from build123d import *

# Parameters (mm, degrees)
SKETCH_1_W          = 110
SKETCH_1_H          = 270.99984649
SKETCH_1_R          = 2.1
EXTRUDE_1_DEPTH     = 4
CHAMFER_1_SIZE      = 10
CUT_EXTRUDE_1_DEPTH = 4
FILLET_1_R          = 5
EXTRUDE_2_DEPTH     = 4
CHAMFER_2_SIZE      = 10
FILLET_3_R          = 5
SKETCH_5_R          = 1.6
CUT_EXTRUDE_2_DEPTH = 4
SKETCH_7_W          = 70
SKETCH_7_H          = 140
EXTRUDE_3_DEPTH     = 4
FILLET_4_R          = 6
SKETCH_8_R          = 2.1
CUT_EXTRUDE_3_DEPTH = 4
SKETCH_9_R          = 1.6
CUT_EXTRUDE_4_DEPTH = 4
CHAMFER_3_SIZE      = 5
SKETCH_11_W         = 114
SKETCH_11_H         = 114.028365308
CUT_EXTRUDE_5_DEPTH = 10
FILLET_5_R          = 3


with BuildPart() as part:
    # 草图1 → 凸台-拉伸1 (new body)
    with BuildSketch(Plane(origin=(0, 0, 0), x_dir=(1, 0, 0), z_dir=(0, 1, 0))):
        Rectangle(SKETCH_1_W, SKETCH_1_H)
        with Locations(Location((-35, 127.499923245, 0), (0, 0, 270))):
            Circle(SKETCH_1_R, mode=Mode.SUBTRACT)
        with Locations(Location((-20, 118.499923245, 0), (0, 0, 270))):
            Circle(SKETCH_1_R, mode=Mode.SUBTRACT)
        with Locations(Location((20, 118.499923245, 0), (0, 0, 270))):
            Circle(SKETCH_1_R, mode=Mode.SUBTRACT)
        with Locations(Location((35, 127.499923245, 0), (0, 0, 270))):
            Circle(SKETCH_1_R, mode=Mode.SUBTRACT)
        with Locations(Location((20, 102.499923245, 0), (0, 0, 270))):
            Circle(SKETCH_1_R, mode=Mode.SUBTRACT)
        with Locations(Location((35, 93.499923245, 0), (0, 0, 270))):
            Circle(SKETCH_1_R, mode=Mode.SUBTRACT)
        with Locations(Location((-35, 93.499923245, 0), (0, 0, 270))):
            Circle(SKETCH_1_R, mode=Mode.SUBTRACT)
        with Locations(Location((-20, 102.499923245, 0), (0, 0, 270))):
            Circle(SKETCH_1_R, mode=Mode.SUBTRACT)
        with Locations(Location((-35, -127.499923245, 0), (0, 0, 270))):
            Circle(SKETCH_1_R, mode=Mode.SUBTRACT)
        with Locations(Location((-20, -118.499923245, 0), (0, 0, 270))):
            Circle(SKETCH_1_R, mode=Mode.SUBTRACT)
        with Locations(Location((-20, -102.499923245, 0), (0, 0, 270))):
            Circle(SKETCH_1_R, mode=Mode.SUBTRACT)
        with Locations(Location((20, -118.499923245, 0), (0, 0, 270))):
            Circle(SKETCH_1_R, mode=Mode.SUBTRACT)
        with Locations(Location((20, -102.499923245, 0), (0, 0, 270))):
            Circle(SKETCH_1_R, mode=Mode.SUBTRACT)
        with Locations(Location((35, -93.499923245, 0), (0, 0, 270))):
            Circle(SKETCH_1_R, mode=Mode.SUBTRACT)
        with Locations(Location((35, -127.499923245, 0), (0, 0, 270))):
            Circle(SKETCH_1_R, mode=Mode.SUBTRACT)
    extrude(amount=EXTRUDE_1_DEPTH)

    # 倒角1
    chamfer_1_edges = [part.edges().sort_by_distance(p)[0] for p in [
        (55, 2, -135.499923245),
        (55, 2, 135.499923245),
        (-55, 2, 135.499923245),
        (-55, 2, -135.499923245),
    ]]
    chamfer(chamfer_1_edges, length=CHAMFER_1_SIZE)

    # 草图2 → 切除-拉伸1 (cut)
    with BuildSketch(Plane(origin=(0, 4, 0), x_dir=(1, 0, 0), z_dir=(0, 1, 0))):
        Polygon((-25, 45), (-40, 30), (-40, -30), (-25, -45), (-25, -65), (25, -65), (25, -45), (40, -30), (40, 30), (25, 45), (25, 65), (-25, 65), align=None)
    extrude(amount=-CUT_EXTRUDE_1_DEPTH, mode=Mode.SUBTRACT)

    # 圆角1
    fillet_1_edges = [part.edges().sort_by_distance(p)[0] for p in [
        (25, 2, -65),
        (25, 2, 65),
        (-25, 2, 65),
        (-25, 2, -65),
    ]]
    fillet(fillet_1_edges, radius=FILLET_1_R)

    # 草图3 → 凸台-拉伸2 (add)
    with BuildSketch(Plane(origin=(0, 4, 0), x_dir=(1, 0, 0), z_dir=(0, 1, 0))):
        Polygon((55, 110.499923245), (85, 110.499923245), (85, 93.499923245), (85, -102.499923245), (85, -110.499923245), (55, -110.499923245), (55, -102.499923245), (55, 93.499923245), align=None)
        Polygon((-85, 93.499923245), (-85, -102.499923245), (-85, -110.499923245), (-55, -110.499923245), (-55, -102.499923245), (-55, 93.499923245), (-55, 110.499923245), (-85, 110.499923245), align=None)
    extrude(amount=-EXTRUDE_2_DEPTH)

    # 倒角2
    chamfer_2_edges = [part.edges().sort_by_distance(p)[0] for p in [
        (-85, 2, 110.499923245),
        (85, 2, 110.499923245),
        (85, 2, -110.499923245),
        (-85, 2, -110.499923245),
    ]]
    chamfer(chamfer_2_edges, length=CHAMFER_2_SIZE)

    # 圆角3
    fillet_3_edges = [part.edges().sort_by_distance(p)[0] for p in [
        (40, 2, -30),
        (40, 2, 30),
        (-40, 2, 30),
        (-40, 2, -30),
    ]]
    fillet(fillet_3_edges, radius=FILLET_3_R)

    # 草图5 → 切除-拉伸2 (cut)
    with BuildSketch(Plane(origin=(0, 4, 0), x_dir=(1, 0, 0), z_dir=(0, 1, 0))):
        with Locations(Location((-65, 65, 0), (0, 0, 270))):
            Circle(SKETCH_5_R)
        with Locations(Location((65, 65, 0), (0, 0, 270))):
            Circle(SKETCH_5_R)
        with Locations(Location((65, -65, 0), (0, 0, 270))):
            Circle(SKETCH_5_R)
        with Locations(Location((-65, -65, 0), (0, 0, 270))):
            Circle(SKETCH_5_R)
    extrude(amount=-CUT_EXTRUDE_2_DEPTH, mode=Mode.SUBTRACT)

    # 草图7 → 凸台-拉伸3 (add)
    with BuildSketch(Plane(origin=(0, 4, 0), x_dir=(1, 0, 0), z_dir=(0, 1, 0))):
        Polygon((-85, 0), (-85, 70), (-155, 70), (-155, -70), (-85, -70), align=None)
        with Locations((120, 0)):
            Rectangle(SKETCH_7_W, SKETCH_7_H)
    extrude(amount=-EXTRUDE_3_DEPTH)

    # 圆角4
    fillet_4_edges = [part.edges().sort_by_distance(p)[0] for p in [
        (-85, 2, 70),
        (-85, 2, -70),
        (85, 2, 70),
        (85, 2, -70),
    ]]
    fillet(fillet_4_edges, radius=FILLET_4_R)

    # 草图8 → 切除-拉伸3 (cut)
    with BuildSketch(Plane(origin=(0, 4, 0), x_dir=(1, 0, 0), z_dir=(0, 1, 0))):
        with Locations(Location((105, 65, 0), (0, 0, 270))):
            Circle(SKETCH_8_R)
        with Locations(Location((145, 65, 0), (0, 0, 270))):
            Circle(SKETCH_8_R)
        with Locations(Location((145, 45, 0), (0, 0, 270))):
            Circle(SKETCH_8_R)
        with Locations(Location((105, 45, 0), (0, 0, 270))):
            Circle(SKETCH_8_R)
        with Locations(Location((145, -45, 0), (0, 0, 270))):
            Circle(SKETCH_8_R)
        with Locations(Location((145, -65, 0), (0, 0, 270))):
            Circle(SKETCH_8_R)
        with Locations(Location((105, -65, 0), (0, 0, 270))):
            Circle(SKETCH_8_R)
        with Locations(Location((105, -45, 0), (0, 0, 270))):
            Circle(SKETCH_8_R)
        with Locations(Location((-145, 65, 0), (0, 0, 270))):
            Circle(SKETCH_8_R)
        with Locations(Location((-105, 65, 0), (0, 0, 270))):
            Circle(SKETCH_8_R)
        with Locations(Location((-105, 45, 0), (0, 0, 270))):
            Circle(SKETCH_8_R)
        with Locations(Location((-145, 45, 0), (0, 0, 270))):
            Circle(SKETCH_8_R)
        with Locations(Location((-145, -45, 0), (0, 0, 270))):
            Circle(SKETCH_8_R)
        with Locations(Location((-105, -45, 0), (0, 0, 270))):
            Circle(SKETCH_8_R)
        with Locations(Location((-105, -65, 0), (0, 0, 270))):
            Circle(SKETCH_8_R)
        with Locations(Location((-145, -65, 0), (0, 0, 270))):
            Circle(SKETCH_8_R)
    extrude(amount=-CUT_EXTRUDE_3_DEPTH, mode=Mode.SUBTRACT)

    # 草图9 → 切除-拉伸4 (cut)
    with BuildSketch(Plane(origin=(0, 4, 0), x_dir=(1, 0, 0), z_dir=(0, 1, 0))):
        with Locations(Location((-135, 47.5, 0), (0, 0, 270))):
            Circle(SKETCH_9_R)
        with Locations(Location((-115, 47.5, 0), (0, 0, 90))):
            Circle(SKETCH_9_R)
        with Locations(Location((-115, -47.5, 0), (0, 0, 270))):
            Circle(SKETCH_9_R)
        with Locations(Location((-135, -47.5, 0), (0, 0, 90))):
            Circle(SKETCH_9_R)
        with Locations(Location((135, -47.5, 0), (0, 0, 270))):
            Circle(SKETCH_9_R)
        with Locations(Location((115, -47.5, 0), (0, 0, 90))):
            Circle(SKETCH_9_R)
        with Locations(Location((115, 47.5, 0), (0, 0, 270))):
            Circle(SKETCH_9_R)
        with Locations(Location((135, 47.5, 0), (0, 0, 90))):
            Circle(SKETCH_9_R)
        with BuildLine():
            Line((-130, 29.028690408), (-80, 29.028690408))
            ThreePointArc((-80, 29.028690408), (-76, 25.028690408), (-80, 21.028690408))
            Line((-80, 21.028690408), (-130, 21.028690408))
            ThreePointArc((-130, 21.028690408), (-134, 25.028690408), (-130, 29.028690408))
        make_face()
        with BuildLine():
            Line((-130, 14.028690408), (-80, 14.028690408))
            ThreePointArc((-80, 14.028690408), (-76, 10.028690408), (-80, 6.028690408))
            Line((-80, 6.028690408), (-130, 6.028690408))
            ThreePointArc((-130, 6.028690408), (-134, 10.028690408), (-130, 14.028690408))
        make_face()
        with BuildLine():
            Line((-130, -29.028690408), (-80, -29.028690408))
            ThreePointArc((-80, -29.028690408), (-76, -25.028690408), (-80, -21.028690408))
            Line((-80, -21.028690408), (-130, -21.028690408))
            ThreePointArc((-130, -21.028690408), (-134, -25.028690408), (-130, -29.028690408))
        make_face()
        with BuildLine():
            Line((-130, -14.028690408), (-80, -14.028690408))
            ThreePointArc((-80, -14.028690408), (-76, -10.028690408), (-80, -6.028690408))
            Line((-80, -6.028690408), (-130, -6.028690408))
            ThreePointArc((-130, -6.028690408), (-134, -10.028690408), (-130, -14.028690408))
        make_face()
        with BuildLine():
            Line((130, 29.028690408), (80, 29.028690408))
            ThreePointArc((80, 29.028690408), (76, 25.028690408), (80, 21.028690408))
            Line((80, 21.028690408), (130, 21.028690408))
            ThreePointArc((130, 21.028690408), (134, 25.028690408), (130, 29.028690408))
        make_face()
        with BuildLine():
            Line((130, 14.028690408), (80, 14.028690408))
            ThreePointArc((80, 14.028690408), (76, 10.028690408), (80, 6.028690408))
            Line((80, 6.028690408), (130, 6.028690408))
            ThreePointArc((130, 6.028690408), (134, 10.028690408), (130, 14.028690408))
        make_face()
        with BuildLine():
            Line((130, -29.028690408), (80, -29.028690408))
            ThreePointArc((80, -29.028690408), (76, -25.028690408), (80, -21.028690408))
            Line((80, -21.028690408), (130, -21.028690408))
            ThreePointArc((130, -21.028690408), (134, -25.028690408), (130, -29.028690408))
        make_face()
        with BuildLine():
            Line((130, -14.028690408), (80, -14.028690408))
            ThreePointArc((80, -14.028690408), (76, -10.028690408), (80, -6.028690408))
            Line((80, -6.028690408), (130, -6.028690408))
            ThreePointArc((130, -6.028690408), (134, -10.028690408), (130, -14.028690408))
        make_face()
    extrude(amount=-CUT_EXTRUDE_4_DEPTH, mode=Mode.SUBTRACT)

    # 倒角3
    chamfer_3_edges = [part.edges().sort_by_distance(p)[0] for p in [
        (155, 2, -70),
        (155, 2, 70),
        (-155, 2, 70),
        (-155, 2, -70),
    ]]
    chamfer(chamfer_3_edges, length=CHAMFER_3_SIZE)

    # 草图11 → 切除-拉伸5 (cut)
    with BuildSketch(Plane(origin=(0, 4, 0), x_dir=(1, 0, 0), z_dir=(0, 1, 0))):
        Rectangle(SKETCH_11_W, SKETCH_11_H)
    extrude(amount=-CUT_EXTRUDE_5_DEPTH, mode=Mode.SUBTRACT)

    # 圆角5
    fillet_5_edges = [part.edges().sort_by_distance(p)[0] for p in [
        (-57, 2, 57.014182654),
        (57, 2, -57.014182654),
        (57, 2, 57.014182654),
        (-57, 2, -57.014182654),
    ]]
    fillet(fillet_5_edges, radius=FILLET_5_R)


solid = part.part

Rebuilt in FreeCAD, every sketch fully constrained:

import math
import FreeCAD as App
import Part
import Sketcher


def edges_at(feature, points):
    """Names of the edges that pass closest to the given points."""
    edges = feature.Shape.Edges
    near = lambda p: min(range(len(edges)), key=lambda i: edges[i].distToShape(Part.Vertex(*p))[0])
    return sorted({f"Edge{near(p) + 1}" for p in points})

doc = App.newDocument("Part")
params = doc.addObject("Spreadsheet::Sheet", "Params")
for row, (alias, value) in enumerate([
    ("sketch1_diameter", "4.2 mm"),
    ("sketch1_width", "110 mm"),
    ("pad1_length", "4 mm"),
    ("chamfer_size", "10 mm"),
    ("sketch2_width", "50 mm"),
    ("sketch2_height", "60 mm"),
    ("sketch2_height2", "20 mm"),
    ("pocket1_length", "4 mm"),
    ("fillet_radius", "5 mm"),
    ("sketch3_width", "30 mm"),
    ("pad2_length", "4 mm"),
    ("chamfer2_size", "10 mm"),
    ("fillet2_radius", "5 mm"),
    ("sketch4_diameter", "3.2 mm"),
    ("pocket2_length", "4 mm"),
    ("sketch5_width", "70 mm"),
    ("sketch5_height", "140 mm"),
    ("pad3_length", "4 mm"),
    ("fillet3_radius", "6 mm"),
    ("sketch6_diameter", "4.2 mm"),
    ("pocket3_length", "4 mm"),
    ("sketch7_radius", "4 mm"),
    ("sketch7_diameter", "3.2 mm"),
    ("sketch7_width", "50 mm"),
    ("pocket4_length", "4 mm"),
    ("chamfer3_size", "5 mm"),
    ("sketch8_width", "114 mm"),
    ("pocket5_length", "10 mm"),
    ("fillet4_radius", "3 mm"),
], start=1):
    params.set(f"A{row}", alias)
    params.set(f"B{row}", "=" + value)
    params.setAlias(f"B{row}", alias)

body = doc.addObject("PartDesign::Body", "Body")

# Sketch on XZ plane
sketch1 = body.newObject("Sketcher::SketchObject", "Sketch")
sketch1.AttachmentSupport = (doc.getObject("XZ_Plane"), [""])
sketch1.MapMode = "FlatFace"
sketch1.addGeometry(Part.LineSegment(App.Vector(-55, -135.499923, 0), App.Vector(-55, 135.499923, 0)), False)
sketch1.addGeometry(Part.LineSegment(App.Vector(-55, 135.499923, 0), App.Vector(55, 135.499923, 0)), False)
sketch1.addGeometry(Part.LineSegment(App.Vector(55, 135.499923, 0), App.Vector(55, -135.499923, 0)), False)
sketch1.addGeometry(Part.LineSegment(App.Vector(55, -135.499923, 0), App.Vector(-55, -135.499923, 0)), False)
sketch1.addGeometry(Part.Circle(App.Vector(-35, 127.499923, 0), App.Vector(0, 0, 1), 2.1), False)
sketch1.addGeometry(Part.Circle(App.Vector(-20, 118.499923, 0), App.Vector(0, 0, 1), 2.1), False)
sketch1.addGeometry(Part.Circle(App.Vector(-20, 102.499923, 0), App.Vector(0, 0, 1), 2.1), False)
sketch1.addGeometry(Part.Circle(App.Vector(20, 118.499923, 0), App.Vector(0, 0, 1), 2.1), False)
sketch1.addGeometry(Part.Circle(App.Vector(20, 102.499923, 0), App.Vector(0, 0, 1), 2.1), False)
sketch1.addGeometry(Part.Circle(App.Vector(35, 127.499923, 0), App.Vector(0, 0, 1), 2.1), False)
sketch1.addGeometry(Part.Circle(App.Vector(35, 93.499923, 0), App.Vector(0, 0, 1), 2.1), False)
sketch1.addGeometry(Part.Circle(App.Vector(-35, -93.499923, 0), App.Vector(0, 0, 1), 2.1), False)
sketch1.addGeometry(Part.Circle(App.Vector(-35, -127.499923, 0), App.Vector(0, 0, 1), 2.1), False)
sketch1.addGeometry(Part.Circle(App.Vector(-20, -102.499923, 0), App.Vector(0, 0, 1), 2.1), False)
sketch1.addGeometry(Part.Circle(App.Vector(-20, -118.499923, 0), App.Vector(0, 0, 1), 2.1), False)
sketch1.addGeometry(Part.Circle(App.Vector(35, -93.499923, 0), App.Vector(0, 0, 1), 2.1), False)
sketch1.addGeometry(Part.Circle(App.Vector(20, -102.499923, 0), App.Vector(0, 0, 1), 2.1), False)
sketch1.addGeometry(Part.Circle(App.Vector(20, -118.499923, 0), App.Vector(0, 0, 1), 2.1), False)
sketch1.addGeometry(Part.Circle(App.Vector(35, -127.499923, 0), App.Vector(0, 0, 1), 2.1), False)
sketch1.addConstraint(Sketcher.Constraint("Coincident", 0, 2, 1, 1))
sketch1.addConstraint(Sketcher.Constraint("Coincident", 1, 2, 2, 1))
sketch1.addConstraint(Sketcher.Constraint("Coincident", 2, 2, 3, 1))
sketch1.addConstraint(Sketcher.Constraint("Coincident", 3, 2, 0, 1))
sketch1.addConstraint(Sketcher.Constraint("Vertical", 0))
sketch1.addConstraint(Sketcher.Constraint("Horizontal", 1))
sketch1.addConstraint(Sketcher.Constraint("Vertical", 2))
sketch1.addConstraint(Sketcher.Constraint("Horizontal", 3))
sketch1.addConstraint(Sketcher.Constraint("Equal", 4, 5))
sketch1.addConstraint(Sketcher.Constraint("Equal", 5, 6))
sketch1.addConstraint(Sketcher.Constraint("Equal", 6, 7))
sketch1.addConstraint(Sketcher.Constraint("Equal", 7, 8))
sketch1.addConstraint(Sketcher.Constraint("Equal", 8, 9))
sketch1.addConstraint(Sketcher.Constraint("Equal", 9, 10))
sketch1.addConstraint(Sketcher.Constraint("Equal", 10, 11))
sketch1.addConstraint(Sketcher.Constraint("Equal", 11, 12))
sketch1.addConstraint(Sketcher.Constraint("Equal", 12, 13))
sketch1.addConstraint(Sketcher.Constraint("Equal", 13, 14))
sketch1.addConstraint(Sketcher.Constraint("Equal", 14, 15))
sketch1.addConstraint(Sketcher.Constraint("Equal", 15, 16))
sketch1.addConstraint(Sketcher.Constraint("Equal", 16, 17))
sketch1.addConstraint(Sketcher.Constraint("Equal", 17, 18))
sketch1.addConstraint(Sketcher.Constraint("Symmetric", 10, 3, 11, 3, -1, 1))
sketch1.addConstraint(Sketcher.Constraint("Symmetric", 9, 3, 12, 3, -1, 1))
sketch1.addConstraint(Sketcher.Constraint("Symmetric", 8, 3, 13, 3, -1, 1))
sketch1.addConstraint(Sketcher.Constraint("Symmetric", 7, 3, 14, 3, -1, 1))
sketch1.addConstraint(Sketcher.Constraint("Symmetric", 6, 3, 16, 3, -1, 1))
sketch1.addConstraint(Sketcher.Constraint("Symmetric", 5, 3, 17, 3, -1, 1))
sketch1.addConstraint(Sketcher.Constraint("Symmetric", 4, 3, 18, 3, -1, 1))
sketch1.addConstraint(Sketcher.Constraint("Symmetric", 0, 2, 2, 2, -1, 1))
sketch1.addConstraint(Sketcher.Constraint("Symmetric", 5, 3, 7, 3, -2))
sketch1.addConstraint(Sketcher.Constraint("Symmetric", 6, 3, 8, 3, -2))
sketch1.addConstraint(Sketcher.Constraint("Symmetric", 4, 3, 9, 3, -2))
sketch1.addConstraint(Sketcher.Constraint("Symmetric", 11, 3, 15, 3, -2))
sketch1.addConstraint(Sketcher.Constraint("Vertical", 5, 3, 6, 3))
sketch1.addConstraint(Sketcher.Constraint("Vertical", 9, 3, 10, 3))
sketch1.addConstraint(Sketcher.Constraint("Diameter", 4, 4.2))
sketch1.addConstraint(Sketcher.Constraint("DistanceX", 1, 1, 1, 2, 110.0))
sketch1.addConstraint(Sketcher.Constraint("DistanceX", 4, 3, -1, 1, 35.0))
sketch1.addConstraint(Sketcher.Constraint("DistanceX", 5, 3, -1, 1, 20.0))
sketch1.addConstraint(Sketcher.Constraint("DistanceY", 5, 3, 4, 3, 9.0))
sketch1.addConstraint(Sketcher.Constraint("DistanceY", 6, 3, 5, 3, 16.0))
sketch1.addConstraint(Sketcher.Constraint("DistanceY", 10, 3, 8, 3, 9.0))
sketch1.addConstraint(Sketcher.Constraint("DistanceY", 4, 3, 0, 2, 8.0))
sketch1.addConstraint(Sketcher.Constraint("DistanceY", 0, 1, 0, 2, 270.999846))
sketch1.setExpression("Constraints[36]", "Params.sketch1_diameter")
sketch1.setExpression("Constraints[37]", "Params.sketch1_width")
pad1 = body.newObject("PartDesign::Pad", "Pad")
pad1.Profile = sketch1
pad1.setExpression("Length", "Params.pad1_length")
pad1.Reversed = True
doc.recompute()

chamfer = body.newObject("PartDesign::Chamfer", "Chamfer")
chamfer.Base = (pad1, edges_at(pad1, [
    (55, 2, -135.5),
    (55, 2, 135.5),
    (-55, 2, 135.5),
    (-55, 2, -135.5),
]))
chamfer.setExpression("Size", "Params.chamfer_size")

# Sketch on XZ plane
sketch2 = body.newObject("Sketcher::SketchObject", "Sketch001")
sketch2.AttachmentSupport = (doc.getObject("XZ_Plane"), [""])
sketch2.MapMode = "FlatFace"
sketch2.AttachmentOffset = App.Placement(App.Vector(0, 0, -4), App.Rotation())
sketch2.addGeometry(Part.LineSegment(App.Vector(-25, -45, 0), App.Vector(-40, -30, 0)), False)
sketch2.addGeometry(Part.LineSegment(App.Vector(-40, -30, 0), App.Vector(-40, 30, 0)), False)
sketch2.addGeometry(Part.LineSegment(App.Vector(-40, 30, 0), App.Vector(-25, 45, 0)), False)
sketch2.addGeometry(Part.LineSegment(App.Vector(-25, 45, 0), App.Vector(-25, 65, 0)), False)
sketch2.addGeometry(Part.LineSegment(App.Vector(-25, 65, 0), App.Vector(25, 65, 0)), False)
sketch2.addGeometry(Part.LineSegment(App.Vector(25, 65, 0), App.Vector(25, 45, 0)), False)
sketch2.addGeometry(Part.LineSegment(App.Vector(25, 45, 0), App.Vector(40, 30, 0)), False)
sketch2.addGeometry(Part.LineSegment(App.Vector(40, 30, 0), App.Vector(40, -30, 0)), False)
sketch2.addGeometry(Part.LineSegment(App.Vector(40, -30, 0), App.Vector(25, -45, 0)), False)
sketch2.addGeometry(Part.LineSegment(App.Vector(25, -45, 0), App.Vector(25, -65, 0)), False)
sketch2.addGeometry(Part.LineSegment(App.Vector(25, -65, 0), App.Vector(-25, -65, 0)), False)
sketch2.addGeometry(Part.LineSegment(App.Vector(-25, -65, 0), App.Vector(-25, -45, 0)), False)
sketch2.addConstraint(Sketcher.Constraint("Coincident", 0, 2, 1, 1))
sketch2.addConstraint(Sketcher.Constraint("Coincident", 1, 2, 2, 1))
sketch2.addConstraint(Sketcher.Constraint("Coincident", 2, 2, 3, 1))
sketch2.addConstraint(Sketcher.Constraint("Coincident", 3, 2, 4, 1))
sketch2.addConstraint(Sketcher.Constraint("Coincident", 4, 2, 5, 1))
sketch2.addConstraint(Sketcher.Constraint("Coincident", 5, 2, 6, 1))
sketch2.addConstraint(Sketcher.Constraint("Coincident", 6, 2, 7, 1))
sketch2.addConstraint(Sketcher.Constraint("Coincident", 7, 2, 8, 1))
sketch2.addConstraint(Sketcher.Constraint("Coincident", 8, 2, 9, 1))
sketch2.addConstraint(Sketcher.Constraint("Coincident", 9, 2, 10, 1))
sketch2.addConstraint(Sketcher.Constraint("Coincident", 10, 2, 11, 1))
sketch2.addConstraint(Sketcher.Constraint("Coincident", 11, 2, 0, 1))
sketch2.addConstraint(Sketcher.Constraint("Vertical", 1))
sketch2.addConstraint(Sketcher.Constraint("Vertical", 3))
sketch2.addConstraint(Sketcher.Constraint("Horizontal", 4))
sketch2.addConstraint(Sketcher.Constraint("Vertical", 5))
sketch2.addConstraint(Sketcher.Constraint("Vertical", 7))
sketch2.addConstraint(Sketcher.Constraint("Vertical", 9))
sketch2.addConstraint(Sketcher.Constraint("Horizontal", 10))
sketch2.addConstraint(Sketcher.Constraint("Vertical", 11))
sketch2.addConstraint(Sketcher.Constraint("Symmetric", 0, 2, 6, 2, -1, 1))
sketch2.addConstraint(Sketcher.Constraint("Symmetric", 2, 2, 8, 2, -1, 1))
sketch2.addConstraint(Sketcher.Constraint("Symmetric", 4, 2, 10, 2, -1, 1))
sketch2.addConstraint(Sketcher.Constraint("Symmetric", 2, 2, 5, 2, -2))
sketch2.addConstraint(Sketcher.Constraint("Perpendicular", 0, 2))
sketch2.addConstraint(Sketcher.Constraint("Perpendicular", 2, 6))
sketch2.addConstraint(Sketcher.Constraint("Perpendicular", 6, 8))
sketch2.addConstraint(Sketcher.Constraint("Horizontal", 1, 2, 6, 2))
sketch2.addConstraint(Sketcher.Constraint("DistanceX", 4, 1, 4, 2, 50.0))
sketch2.addConstraint(Sketcher.Constraint("DistanceY", 1, 1, 1, 2, 60.0))
sketch2.addConstraint(Sketcher.Constraint("DistanceY", 3, 1, 3, 2, 20.0))
sketch2.addConstraint(Sketcher.Constraint("DistanceX", 0, 2, -1, 1, 40.0))
sketch2.setExpression("Constraints[28]", "Params.sketch2_width")
sketch2.setExpression("Constraints[29]", "Params.sketch2_height")
sketch2.setExpression("Constraints[30]", "Params.sketch2_height2")
pocket1 = body.newObject("PartDesign::Pocket", "Pocket")
pocket1.Profile = sketch2
pocket1.setExpression("Length", "Params.pocket1_length")
pocket1.Reversed = True
doc.recompute()

fillet = body.newObject("PartDesign::Fillet", "Fillet")
fillet.Base = (pocket1, edges_at(pocket1, [
    (25, 2, -65),
    (25, 2, 65),
    (-25, 2, 65),
    (-25, 2, -65),
]))
fillet.setExpression("Radius", "Params.fillet_radius")

# Sketch on XZ plane
sketch3 = body.newObject("Sketcher::SketchObject", "Sketch002")
sketch3.AttachmentSupport = (doc.getObject("XZ_Plane"), [""])
sketch3.MapMode = "FlatFace"
sketch3.AttachmentOffset = App.Placement(App.Vector(0, 0, -4), App.Rotation())
sketch3.addGeometry(Part.LineSegment(App.Vector(85, -110.499923, 0), App.Vector(55, -110.499923, 0)), False)
sketch3.addGeometry(Part.LineSegment(App.Vector(55, -110.499923, 0), App.Vector(55, 110.499923, 0)), False)
sketch3.addGeometry(Part.LineSegment(App.Vector(55, 110.499923, 0), App.Vector(85, 110.499923, 0)), False)
sketch3.addGeometry(Part.LineSegment(App.Vector(85, 110.499923, 0), App.Vector(85, -110.499923, 0)), False)
sketch3.addGeometry(Part.LineSegment(App.Vector(-85, 110.499923, 0), App.Vector(-55, 110.499923, 0)), False)
sketch3.addGeometry(Part.LineSegment(App.Vector(-55, 110.499923, 0), App.Vector(-55, -110.499923, 0)), False)
sketch3.addGeometry(Part.LineSegment(App.Vector(-55, -110.499923, 0), App.Vector(-85, -110.499923, 0)), False)
sketch3.addGeometry(Part.LineSegment(App.Vector(-85, -110.499923, 0), App.Vector(-85, 110.499923, 0)), False)
sketch3.addConstraint(Sketcher.Constraint("Coincident", 0, 2, 1, 1))
sketch3.addConstraint(Sketcher.Constraint("Coincident", 1, 2, 2, 1))
sketch3.addConstraint(Sketcher.Constraint("Coincident", 2, 2, 3, 1))
sketch3.addConstraint(Sketcher.Constraint("Coincident", 3, 2, 0, 1))
sketch3.addConstraint(Sketcher.Constraint("Coincident", 4, 2, 5, 1))
sketch3.addConstraint(Sketcher.Constraint("Coincident", 5, 2, 6, 1))
sketch3.addConstraint(Sketcher.Constraint("Coincident", 6, 2, 7, 1))
sketch3.addConstraint(Sketcher.Constraint("Coincident", 7, 2, 4, 1))
sketch3.addConstraint(Sketcher.Constraint("Horizontal", 0))
sketch3.addConstraint(Sketcher.Constraint("Vertical", 1))
sketch3.addConstraint(Sketcher.Constraint("Horizontal", 2))
sketch3.addConstraint(Sketcher.Constraint("Vertical", 3))
sketch3.addConstraint(Sketcher.Constraint("Horizontal", 4))
sketch3.addConstraint(Sketcher.Constraint("Vertical", 5))
sketch3.addConstraint(Sketcher.Constraint("Horizontal", 6))
sketch3.addConstraint(Sketcher.Constraint("Vertical", 7))
sketch3.addConstraint(Sketcher.Constraint("Symmetric", 0, 2, 4, 2, -1, 1))
sketch3.addConstraint(Sketcher.Constraint("Symmetric", 2, 2, 6, 2, -1, 1))
sketch3.addConstraint(Sketcher.Constraint("Horizontal", 2, 2, 4, 2))
sketch3.addConstraint(Sketcher.Constraint("DistanceX", 0, 2, 0, 1, 30.0))
sketch3.addConstraint(Sketcher.Constraint("DistanceX", -1, 1, 0, 2, 55.0))
sketch3.addConstraint(Sketcher.Constraint("DistanceY", 1, 1, 1, 2, 220.999846))
sketch3.setExpression("Constraints[19]", "Params.sketch3_width")
pad2 = body.newObject("PartDesign::Pad", "Pad001")
pad2.Profile = sketch3
pad2.setExpression("Length", "Params.pad2_length")
doc.recompute()

chamfer2 = body.newObject("PartDesign::Chamfer", "Chamfer001")
chamfer2.Base = (pad2, edges_at(pad2, [
    (-85, 2, 110.5),
    (85, 2, 110.5),
    (85, 2, -110.5),
    (-85, 2, -110.5),
]))
chamfer2.setExpression("Size", "Params.chamfer2_size")
doc.recompute()

fillet2 = body.newObject("PartDesign::Fillet", "Fillet001")
fillet2.Base = (chamfer2, edges_at(chamfer2, [
    (40, 2, -30),
    (40, 2, 30),
    (-40, 2, 30),
    (-40, 2, -30),
]))
fillet2.setExpression("Radius", "Params.fillet2_radius")

# Sketch on XZ plane
sketch4 = body.newObject("Sketcher::SketchObject", "Sketch003")
sketch4.AttachmentSupport = (doc.getObject("XZ_Plane"), [""])
sketch4.MapMode = "FlatFace"
sketch4.AttachmentOffset = App.Placement(App.Vector(0, 0, -4), App.Rotation())
sketch4.addGeometry(Part.Circle(App.Vector(-65, -65, 0), App.Vector(0, 0, 1), 1.6), False)
sketch4.addGeometry(Part.Circle(App.Vector(65, -65, 0), App.Vector(0, 0, 1), 1.6), False)
sketch4.addGeometry(Part.Circle(App.Vector(65, 65, 0), App.Vector(0, 0, 1), 1.6), False)
sketch4.addGeometry(Part.Circle(App.Vector(-65, 65, 0), App.Vector(0, 0, 1), 1.6), False)
sketch4.addConstraint(Sketcher.Constraint("Equal", 0, 1))
sketch4.addConstraint(Sketcher.Constraint("Equal", 1, 2))
sketch4.addConstraint(Sketcher.Constraint("Equal", 2, 3))
sketch4.addConstraint(Sketcher.Constraint("Symmetric", 0, 3, 2, 3, -1, 1))
sketch4.addConstraint(Sketcher.Constraint("Symmetric", 1, 3, 3, 3, -1, 1))
sketch4.addConstraint(Sketcher.Constraint("Symmetric", 0, 3, 1, 3, -2))
sketch4.addConstraint(Sketcher.Constraint("Diameter", 0, 3.2))
sketch4.addConstraint(Sketcher.Constraint("DistanceX", 0, 3, -1, 1, 65.0))
sketch4.addConstraint(Sketcher.Constraint("DistanceY", 0, 3, -1, 1, 65.0))
sketch4.setExpression("Constraints[6]", "Params.sketch4_diameter")
pocket2 = body.newObject("PartDesign::Pocket", "Pocket001")
pocket2.Profile = sketch4
pocket2.setExpression("Length", "Params.pocket2_length")
pocket2.Reversed = True

# Sketch on XZ plane
sketch5 = body.newObject("Sketcher::SketchObject", "Sketch004")
sketch5.AttachmentSupport = (doc.getObject("XZ_Plane"), [""])
sketch5.MapMode = "FlatFace"
sketch5.AttachmentOffset = App.Placement(App.Vector(0, 0, -4), App.Rotation())
sketch5.addGeometry(Part.LineSegment(App.Vector(-85, -70, 0), App.Vector(-155, -70, 0)), False)
sketch5.addGeometry(Part.LineSegment(App.Vector(-155, -70, 0), App.Vector(-155, 70, 0)), False)
sketch5.addGeometry(Part.LineSegment(App.Vector(-155, 70, 0), App.Vector(-85, 70, 0)), False)
sketch5.addGeometry(Part.LineSegment(App.Vector(-85, 70, 0), App.Vector(-85, -70, 0)), False)
sketch5.addGeometry(Part.LineSegment(App.Vector(85, -70, 0), App.Vector(85, 70, 0)), False)
sketch5.addGeometry(Part.LineSegment(App.Vector(85, 70, 0), App.Vector(155, 70, 0)), False)
sketch5.addGeometry(Part.LineSegment(App.Vector(155, 70, 0), App.Vector(155, -70, 0)), False)
sketch5.addGeometry(Part.LineSegment(App.Vector(155, -70, 0), App.Vector(85, -70, 0)), False)
sketch5.addConstraint(Sketcher.Constraint("Coincident", 0, 2, 1, 1))
sketch5.addConstraint(Sketcher.Constraint("Coincident", 1, 2, 2, 1))
sketch5.addConstraint(Sketcher.Constraint("Coincident", 2, 2, 3, 1))
sketch5.addConstraint(Sketcher.Constraint("Coincident", 3, 2, 0, 1))
sketch5.addConstraint(Sketcher.Constraint("Coincident", 4, 2, 5, 1))
sketch5.addConstraint(Sketcher.Constraint("Coincident", 5, 2, 6, 1))
sketch5.addConstraint(Sketcher.Constraint("Coincident", 6, 2, 7, 1))
sketch5.addConstraint(Sketcher.Constraint("Coincident", 7, 2, 4, 1))
sketch5.addConstraint(Sketcher.Constraint("Horizontal", 0))
sketch5.addConstraint(Sketcher.Constraint("Vertical", 1))
sketch5.addConstraint(Sketcher.Constraint("Horizontal", 2))
sketch5.addConstraint(Sketcher.Constraint("Vertical", 3))
sketch5.addConstraint(Sketcher.Constraint("Vertical", 4))
sketch5.addConstraint(Sketcher.Constraint("Horizontal", 5))
sketch5.addConstraint(Sketcher.Constraint("Vertical", 6))
sketch5.addConstraint(Sketcher.Constraint("Horizontal", 7))
sketch5.addConstraint(Sketcher.Constraint("Symmetric", 3, 2, 4, 2, -1, 1))
sketch5.addConstraint(Sketcher.Constraint("Symmetric", 1, 2, 6, 2, -1, 1))
sketch5.addConstraint(Sketcher.Constraint("Horizontal", 2, 2, 4, 2))
sketch5.addConstraint(Sketcher.Constraint("DistanceX", 0, 2, 0, 1, 70.0))
sketch5.addConstraint(Sketcher.Constraint("DistanceY", 1, 1, 1, 2, 140.0))
sketch5.addConstraint(Sketcher.Constraint("DistanceX", 0, 2, -1, 1, 155.0))
sketch5.setExpression("Constraints[19]", "Params.sketch5_width")
sketch5.setExpression("Constraints[20]", "Params.sketch5_height")
pad3 = body.newObject("PartDesign::Pad", "Pad002")
pad3.Profile = sketch5
pad3.setExpression("Length", "Params.pad3_length")
doc.recompute()

fillet3 = body.newObject("PartDesign::Fillet", "Fillet002")
fillet3.Base = (pad3, edges_at(pad3, [
    (-85, 2, 70),
    (-85, 2, -70),
    (85, 2, 70),
    (85, 2, -70),
]))
fillet3.setExpression("Radius", "Params.fillet3_radius")

# Sketch on XZ plane
sketch6 = body.newObject("Sketcher::SketchObject", "Sketch005")
sketch6.AttachmentSupport = (doc.getObject("XZ_Plane"), [""])
sketch6.MapMode = "FlatFace"
sketch6.AttachmentOffset = App.Placement(App.Vector(0, 0, -4), App.Rotation())
sketch6.addGeometry(Part.Circle(App.Vector(105, -65, 0), App.Vector(0, 0, 1), 2.1), False)
sketch6.addGeometry(Part.Circle(App.Vector(145, -65, 0), App.Vector(0, 0, 1), 2.1), False)
sketch6.addGeometry(Part.Circle(App.Vector(145, -45, 0), App.Vector(0, 0, 1), 2.1), False)
sketch6.addGeometry(Part.Circle(App.Vector(105, -45, 0), App.Vector(0, 0, 1), 2.1), False)
sketch6.addGeometry(Part.Circle(App.Vector(145, 45, 0), App.Vector(0, 0, 1), 2.1), False)
sketch6.addGeometry(Part.Circle(App.Vector(145, 65, 0), App.Vector(0, 0, 1), 2.1), False)
sketch6.addGeometry(Part.Circle(App.Vector(105, 65, 0), App.Vector(0, 0, 1), 2.1), False)
sketch6.addGeometry(Part.Circle(App.Vector(105, 45, 0), App.Vector(0, 0, 1), 2.1), False)
sketch6.addGeometry(Part.Circle(App.Vector(-145, -65, 0), App.Vector(0, 0, 1), 2.1), False)
sketch6.addGeometry(Part.Circle(App.Vector(-105, -65, 0), App.Vector(0, 0, 1), 2.1), False)
sketch6.addGeometry(Part.Circle(App.Vector(-105, -45, 0), App.Vector(0, 0, 1), 2.1), False)
sketch6.addGeometry(Part.Circle(App.Vector(-145, -45, 0), App.Vector(0, 0, 1), 2.1), False)
sketch6.addGeometry(Part.Circle(App.Vector(-145, 45, 0), App.Vector(0, 0, 1), 2.1), False)
sketch6.addGeometry(Part.Circle(App.Vector(-105, 45, 0), App.Vector(0, 0, 1), 2.1), False)
sketch6.addGeometry(Part.Circle(App.Vector(-105, 65, 0), App.Vector(0, 0, 1), 2.1), False)
sketch6.addGeometry(Part.Circle(App.Vector(-145, 65, 0), App.Vector(0, 0, 1), 2.1), False)
sketch6.addConstraint(Sketcher.Constraint("Equal", 0, 1))
sketch6.addConstraint(Sketcher.Constraint("Equal", 1, 2))
sketch6.addConstraint(Sketcher.Constraint("Equal", 2, 3))
sketch6.addConstraint(Sketcher.Constraint("Equal", 3, 4))
sketch6.addConstraint(Sketcher.Constraint("Equal", 4, 5))
sketch6.addConstraint(Sketcher.Constraint("Equal", 5, 6))
sketch6.addConstraint(Sketcher.Constraint("Equal", 6, 7))
sketch6.addConstraint(Sketcher.Constraint("Equal", 7, 8))
sketch6.addConstraint(Sketcher.Constraint("Equal", 8, 9))
sketch6.addConstraint(Sketcher.Constraint("Equal", 9, 10))
sketch6.addConstraint(Sketcher.Constraint("Equal", 10, 11))
sketch6.addConstraint(Sketcher.Constraint("Equal", 11, 12))
sketch6.addConstraint(Sketcher.Constraint("Equal", 12, 13))
sketch6.addConstraint(Sketcher.Constraint("Equal", 13, 14))
sketch6.addConstraint(Sketcher.Constraint("Equal", 14, 15))
sketch6.addConstraint(Sketcher.Constraint("Symmetric", 5, 3, 8, 3, -1, 1))
sketch6.addConstraint(Sketcher.Constraint("Symmetric", 6, 3, 9, 3, -1, 1))
sketch6.addConstraint(Sketcher.Constraint("Symmetric", 7, 3, 10, 3, -1, 1))
sketch6.addConstraint(Sketcher.Constraint("Symmetric", 4, 3, 11, 3, -1, 1))
sketch6.addConstraint(Sketcher.Constraint("Symmetric", 2, 3, 12, 3, -1, 1))
sketch6.addConstraint(Sketcher.Constraint("Symmetric", 3, 3, 13, 3, -1, 1))
sketch6.addConstraint(Sketcher.Constraint("Symmetric", 0, 3, 14, 3, -1, 1))
sketch6.addConstraint(Sketcher.Constraint("Symmetric", 1, 3, 15, 3, -1, 1))
sketch6.addConstraint(Sketcher.Constraint("Symmetric", 1, 3, 8, 3, -2))
sketch6.addConstraint(Sketcher.Constraint("Symmetric", 0, 3, 9, 3, -2))
sketch6.addConstraint(Sketcher.Constraint("Symmetric", 3, 3, 10, 3, -2))
sketch6.addConstraint(Sketcher.Constraint("Symmetric", 2, 3, 11, 3, -2))
sketch6.addConstraint(Sketcher.Constraint("Horizontal", 0, 3, 1, 3))
sketch6.addConstraint(Sketcher.Constraint("Horizontal", 2, 3, 3, 3))
sketch6.addConstraint(Sketcher.Constraint("Vertical", 1, 3, 2, 3))
sketch6.addConstraint(Sketcher.Constraint("Vertical", 0, 3, 3, 3))
sketch6.addConstraint(Sketcher.Constraint("Diameter", 0, 4.2))
sketch6.addConstraint(Sketcher.Constraint("DistanceX", -1, 1, 0, 3, 105.0))
sketch6.addConstraint(Sketcher.Constraint("DistanceY", 0, 3, -1, 1, 65.0))
sketch6.addConstraint(Sketcher.Constraint("DistanceX", -1, 1, 1, 3, 145.0))
sketch6.addConstraint(Sketcher.Constraint("DistanceY", 2, 3, -1, 1, 45.0))
sketch6.setExpression("Constraints[31]", "Params.sketch6_diameter")
pocket3 = body.newObject("PartDesign::Pocket", "Pocket002")
pocket3.Profile = sketch6
pocket3.setExpression("Length", "Params.pocket3_length")
pocket3.Reversed = True

# Sketch on XZ plane
sketch7 = body.newObject("Sketcher::SketchObject", "Sketch006")
sketch7.AttachmentSupport = (doc.getObject("XZ_Plane"), [""])
sketch7.MapMode = "FlatFace"
sketch7.AttachmentOffset = App.Placement(App.Vector(0, 0, -4), App.Rotation())
sketch7.addGeometry(Part.Circle(App.Vector(-135, -47.5, 0), App.Vector(0, 0, 1), 1.6), False)
sketch7.addGeometry(Part.Circle(App.Vector(-115, -47.5, 0), App.Vector(0, 0, 1), 1.6), False)
sketch7.addGeometry(Part.Circle(App.Vector(-115, 47.5, 0), App.Vector(0, 0, 1), 1.6), False)
sketch7.addGeometry(Part.Circle(App.Vector(-135, 47.5, 0), App.Vector(0, 0, 1), 1.6), False)
sketch7.addGeometry(Part.Circle(App.Vector(135, 47.5, 0), App.Vector(0, 0, 1), 1.6), False)
sketch7.addGeometry(Part.Circle(App.Vector(115, 47.5, 0), App.Vector(0, 0, 1), 1.6), False)
sketch7.addGeometry(Part.Circle(App.Vector(115, -47.5, 0), App.Vector(0, 0, 1), 1.6), False)
sketch7.addGeometry(Part.Circle(App.Vector(135, -47.5, 0), App.Vector(0, 0, 1), 1.6), False)
sketch7.addGeometry(Part.LineSegment(App.Vector(-80, -29.02869, 0), App.Vector(-130, -29.02869, 0)), False)
sketch7.addGeometry(Part.ArcOfCircle(Part.Circle(App.Vector(-130, -25.02869, 0), App.Vector(0, 0, 1), 4), math.radians(90), math.radians(270)), False)
sketch7.addGeometry(Part.LineSegment(App.Vector(-130, -21.02869, 0), App.Vector(-80, -21.02869, 0)), False)
sketch7.addGeometry(Part.ArcOfCircle(Part.Circle(App.Vector(-80, -25.02869, 0), App.Vector(0, 0, 1), 4), math.radians(-90), math.radians(90)), False)
sketch7.addGeometry(Part.LineSegment(App.Vector(-80, -14.02869, 0), App.Vector(-130, -14.02869, 0)), False)
sketch7.addGeometry(Part.ArcOfCircle(Part.Circle(App.Vector(-130, -10.02869, 0), App.Vector(0, 0, 1), 4), math.radians(90), math.radians(270)), False)
sketch7.addGeometry(Part.LineSegment(App.Vector(-130, -6.02869, 0), App.Vector(-80, -6.02869, 0)), False)
sketch7.addGeometry(Part.ArcOfCircle(Part.Circle(App.Vector(-80, -10.02869, 0), App.Vector(0, 0, 1), 4), math.radians(-90), math.radians(90)), False)
sketch7.addGeometry(Part.LineSegment(App.Vector(-130, 29.02869, 0), App.Vector(-80, 29.02869, 0)), False)
sketch7.addGeometry(Part.ArcOfCircle(Part.Circle(App.Vector(-80, 25.02869, 0), App.Vector(0, 0, 1), 4), math.radians(-90), math.radians(90)), False)
sketch7.addGeometry(Part.LineSegment(App.Vector(-80, 21.02869, 0), App.Vector(-130, 21.02869, 0)), False)
sketch7.addGeometry(Part.ArcOfCircle(Part.Circle(App.Vector(-130, 25.02869, 0), App.Vector(0, 0, 1), 4), math.radians(90), math.radians(270)), False)
sketch7.addGeometry(Part.LineSegment(App.Vector(-130, 14.02869, 0), App.Vector(-80, 14.02869, 0)), False)
sketch7.addGeometry(Part.ArcOfCircle(Part.Circle(App.Vector(-80, 10.02869, 0), App.Vector(0, 0, 1), 4), math.radians(-90), math.radians(90)), False)
sketch7.addGeometry(Part.LineSegment(App.Vector(-80, 6.02869, 0), App.Vector(-130, 6.02869, 0)), False)
sketch7.addGeometry(Part.ArcOfCircle(Part.Circle(App.Vector(-130, 10.02869, 0), App.Vector(0, 0, 1), 4), math.radians(90), math.radians(270)), False)
sketch7.addGeometry(Part.LineSegment(App.Vector(130, -29.02869, 0), App.Vector(80, -29.02869, 0)), False)
sketch7.addGeometry(Part.ArcOfCircle(Part.Circle(App.Vector(80, -25.02869, 0), App.Vector(0, 0, 1), 4), math.radians(90), math.radians(270)), False)
sketch7.addGeometry(Part.LineSegment(App.Vector(80, -21.02869, 0), App.Vector(130, -21.02869, 0)), False)
sketch7.addGeometry(Part.ArcOfCircle(Part.Circle(App.Vector(130, -25.02869, 0), App.Vector(0, 0, 1), 4), math.radians(-90), math.radians(90)), False)
sketch7.addGeometry(Part.LineSegment(App.Vector(130, -14.02869, 0), App.Vector(80, -14.02869, 0)), False)
sketch7.addGeometry(Part.ArcOfCircle(Part.Circle(App.Vector(80, -10.02869, 0), App.Vector(0, 0, 1), 4), math.radians(90), math.radians(270)), False)
sketch7.addGeometry(Part.LineSegment(App.Vector(80, -6.02869, 0), App.Vector(130, -6.02869, 0)), False)
sketch7.addGeometry(Part.ArcOfCircle(Part.Circle(App.Vector(130, -10.02869, 0), App.Vector(0, 0, 1), 4), math.radians(-90), math.radians(90)), False)
sketch7.addGeometry(Part.LineSegment(App.Vector(80, 29.02869, 0), App.Vector(130, 29.02869, 0)), False)
sketch7.addGeometry(Part.ArcOfCircle(Part.Circle(App.Vector(130, 25.02869, 0), App.Vector(0, 0, 1), 4), math.radians(-90), math.radians(90)), False)
sketch7.addGeometry(Part.LineSegment(App.Vector(130, 21.02869, 0), App.Vector(80, 21.02869, 0)), False)
sketch7.addGeometry(Part.ArcOfCircle(Part.Circle(App.Vector(80, 25.02869, 0), App.Vector(0, 0, 1), 4), math.radians(90), math.radians(270)), False)
sketch7.addGeometry(Part.LineSegment(App.Vector(80, 14.02869, 0), App.Vector(130, 14.02869, 0)), False)
sketch7.addGeometry(Part.ArcOfCircle(Part.Circle(App.Vector(130, 10.02869, 0), App.Vector(0, 0, 1), 4), math.radians(-90), math.radians(90)), False)
sketch7.addGeometry(Part.LineSegment(App.Vector(130, 6.02869, 0), App.Vector(80, 6.02869, 0)), False)
sketch7.addGeometry(Part.ArcOfCircle(Part.Circle(App.Vector(80, 10.02869, 0), App.Vector(0, 0, 1), 4), math.radians(90), math.radians(270)), False)
sketch7.addConstraint(Sketcher.Constraint("Tangent", 8, 2, 9, 2))
sketch7.addConstraint(Sketcher.Constraint("Tangent", 9, 1, 10, 1))
sketch7.addConstraint(Sketcher.Constraint("Tangent", 10, 2, 11, 2))
sketch7.addConstraint(Sketcher.Constraint("Tangent", 11, 1, 8, 1))
sketch7.addConstraint(Sketcher.Constraint("Tangent", 12, 2, 13, 2))
sketch7.addConstraint(Sketcher.Constraint("Tangent", 13, 1, 14, 1))
sketch7.addConstraint(Sketcher.Constraint("Tangent", 14, 2, 15, 2))
sketch7.addConstraint(Sketcher.Constraint("Tangent", 15, 1, 12, 1))
sketch7.addConstraint(Sketcher.Constraint("Tangent", 16, 2, 17, 2))
sketch7.addConstraint(Sketcher.Constraint("Tangent", 17, 1, 18, 1))
sketch7.addConstraint(Sketcher.Constraint("Tangent", 18, 2, 19, 2))
sketch7.addConstraint(Sketcher.Constraint("Tangent", 19, 1, 16, 1))
sketch7.addConstraint(Sketcher.Constraint("Tangent", 20, 2, 21, 2))
sketch7.addConstraint(Sketcher.Constraint("Tangent", 21, 1, 22, 1))
sketch7.addConstraint(Sketcher.Constraint("Tangent", 22, 2, 23, 2))
sketch7.addConstraint(Sketcher.Constraint("Tangent", 23, 1, 20, 1))
sketch7.addConstraint(Sketcher.Constraint("Tangent", 24, 2, 25, 2))
sketch7.addConstraint(Sketcher.Constraint("Tangent", 25, 1, 26, 1))
sketch7.addConstraint(Sketcher.Constraint("Tangent", 26, 2, 27, 2))
sketch7.addConstraint(Sketcher.Constraint("Tangent", 27, 1, 24, 1))
sketch7.addConstraint(Sketcher.Constraint("Tangent", 28, 2, 29, 2))
sketch7.addConstraint(Sketcher.Constraint("Tangent", 29, 1, 30, 1))
sketch7.addConstraint(Sketcher.Constraint("Tangent", 30, 2, 31, 2))
sketch7.addConstraint(Sketcher.Constraint("Tangent", 31, 1, 28, 1))
sketch7.addConstraint(Sketcher.Constraint("Tangent", 32, 2, 33, 2))
sketch7.addConstraint(Sketcher.Constraint("Tangent", 33, 1, 34, 1))
sketch7.addConstraint(Sketcher.Constraint("Tangent", 34, 2, 35, 2))
sketch7.addConstraint(Sketcher.Constraint("Tangent", 35, 1, 32, 1))
sketch7.addConstraint(Sketcher.Constraint("Tangent", 36, 2, 37, 2))
sketch7.addConstraint(Sketcher.Constraint("Tangent", 37, 1, 38, 1))
sketch7.addConstraint(Sketcher.Constraint("Tangent", 38, 2, 39, 2))
sketch7.addConstraint(Sketcher.Constraint("Tangent", 39, 1, 36, 1))
sketch7.addConstraint(Sketcher.Constraint("Horizontal", 8))
sketch7.addConstraint(Sketcher.Constraint("Horizontal", 10))
sketch7.addConstraint(Sketcher.Constraint("Horizontal", 12))
sketch7.addConstraint(Sketcher.Constraint("Horizontal", 14))
sketch7.addConstraint(Sketcher.Constraint("Horizontal", 16))
sketch7.addConstraint(Sketcher.Constraint("Horizontal", 18))
sketch7.addConstraint(Sketcher.Constraint("Horizontal", 20))
sketch7.addConstraint(Sketcher.Constraint("Horizontal", 22))
sketch7.addConstraint(Sketcher.Constraint("Horizontal", 24))
sketch7.addConstraint(Sketcher.Constraint("Horizontal", 26))
sketch7.addConstraint(Sketcher.Constraint("Horizontal", 28))
sketch7.addConstraint(Sketcher.Constraint("Horizontal", 30))
sketch7.addConstraint(Sketcher.Constraint("Horizontal", 32))
sketch7.addConstraint(Sketcher.Constraint("Horizontal", 34))
sketch7.addConstraint(Sketcher.Constraint("Horizontal", 36))
sketch7.addConstraint(Sketcher.Constraint("Horizontal", 38))
sketch7.addConstraint(Sketcher.Constraint("Equal", 0, 1))
sketch7.addConstraint(Sketcher.Constraint("Equal", 1, 2))
sketch7.addConstraint(Sketcher.Constraint("Equal", 2, 3))
sketch7.addConstraint(Sketcher.Constraint("Equal", 3, 4))
sketch7.addConstraint(Sketcher.Constraint("Equal", 4, 5))
sketch7.addConstraint(Sketcher.Constraint("Equal", 5, 6))
sketch7.addConstraint(Sketcher.Constraint("Equal", 6, 7))
sketch7.addConstraint(Sketcher.Constraint("Equal", 11, 13))
sketch7.addConstraint(Sketcher.Constraint("Equal", 15, 17))
sketch7.addConstraint(Sketcher.Constraint("Equal", 19, 21))
sketch7.addConstraint(Sketcher.Constraint("Equal", 23, 25))
sketch7.addConstraint(Sketcher.Constraint("Equal", 27, 29))
sketch7.addConstraint(Sketcher.Constraint("Equal", 31, 33))
sketch7.addConstraint(Sketcher.Constraint("Equal", 35, 37))
sketch7.addConstraint(Sketcher.Constraint("Symmetric", 0, 3, 4, 3, -1, 1))
sketch7.addConstraint(Sketcher.Constraint("Symmetric", 1, 3, 5, 3, -1, 1))
sketch7.addConstraint(Sketcher.Constraint("Symmetric", 2, 3, 6, 3, -1, 1))
sketch7.addConstraint(Sketcher.Constraint("Symmetric", 3, 3, 7, 3, -1, 1))
sketch7.addConstraint(Sketcher.Constraint("Symmetric", 17, 3, 25, 3, -1, 1))
sketch7.addConstraint(Sketcher.Constraint("Symmetric", 21, 3, 29, 3, -1, 1))
sketch7.addConstraint(Sketcher.Constraint("Symmetric", 9, 3, 33, 3, -1, 1))
sketch7.addConstraint(Sketcher.Constraint("Symmetric", 13, 3, 37, 3, -1, 1))
sketch7.addConstraint(Sketcher.Constraint("Symmetric", 3, 3, 4, 3, -2))
sketch7.addConstraint(Sketcher.Constraint("Symmetric", 2, 3, 5, 3, -2))
sketch7.addConstraint(Sketcher.Constraint("Symmetric", 11, 3, 25, 3, -2))
sketch7.addConstraint(Sketcher.Constraint("Symmetric", 15, 3, 29, 3, -2))
sketch7.addConstraint(Sketcher.Constraint("Horizontal", 0, 3, 1, 3))
sketch7.addConstraint(Sketcher.Constraint("Vertical", 9, 3, 13, 3))
sketch7.addConstraint(Sketcher.Constraint("Vertical", 11, 3, 15, 3))
sketch7.addConstraint(Sketcher.Constraint("Vertical", 13, 3, 19, 3))
sketch7.addConstraint(Sketcher.Constraint("Vertical", 19, 3, 23, 3))
sketch7.addConstraint(Sketcher.Constraint("Vertical", 27, 3, 31, 3))
sketch7.addConstraint(Sketcher.Constraint("Vertical", 31, 3, 33, 3))
sketch7.addConstraint(Sketcher.Constraint("Vertical", 29, 3, 35, 3))
sketch7.addConstraint(Sketcher.Constraint("Vertical", 35, 3, 39, 3))
sketch7.addConstraint(Sketcher.Constraint("Radius", 9, 4.0))
sketch7.addConstraint(Sketcher.Constraint("Diameter", 0, 3.2))
sketch7.addConstraint(Sketcher.Constraint("DistanceX", 8, 2, 8, 1, 50.0))
sketch7.addConstraint(Sketcher.Constraint("DistanceX", 0, 3, -1, 1, 135.0))
sketch7.addConstraint(Sketcher.Constraint("DistanceX", 1, 3, -1, 1, 115.0))
sketch7.addConstraint(Sketcher.Constraint("DistanceX", 9, 3, -1, 1, 130.0))
sketch7.addConstraint(Sketcher.Constraint("DistanceY", 1, 3, 2, 3, 95.0))
sketch7.addConstraint(Sketcher.Constraint("DistanceY", 9, 3, 13, 3, 15.0))
sketch7.addConstraint(Sketcher.Constraint("DistanceY", 9, 3, -1, 1, 25.02869))
sketch7.setExpression("Constraints[83]", "Params.sketch7_radius")
sketch7.setExpression("Constraints[84]", "Params.sketch7_diameter")
sketch7.setExpression("Constraints[85]", "Params.sketch7_width")
pocket4 = body.newObject("PartDesign::Pocket", "Pocket003")
pocket4.Profile = sketch7
pocket4.setExpression("Length", "Params.pocket4_length")
pocket4.Reversed = True
doc.recompute()

chamfer3 = body.newObject("PartDesign::Chamfer", "Chamfer002")
chamfer3.Base = (pocket4, edges_at(pocket4, [
    (155, 2, -70),
    (155, 2, 70),
    (-155, 2, 70),
    (-155, 2, -70),
]))
chamfer3.setExpression("Size", "Params.chamfer3_size")

# Sketch on XZ plane
sketch8 = body.newObject("Sketcher::SketchObject", "Sketch007")
sketch8.AttachmentSupport = (doc.getObject("XZ_Plane"), [""])
sketch8.MapMode = "FlatFace"
sketch8.AttachmentOffset = App.Placement(App.Vector(0, 0, -4), App.Rotation())
sketch8.addGeometry(Part.LineSegment(App.Vector(-57, -57.014183, 0), App.Vector(-57, 57.014183, 0)), False)
sketch8.addGeometry(Part.LineSegment(App.Vector(-57, 57.014183, 0), App.Vector(57, 57.014183, 0)), False)
sketch8.addGeometry(Part.LineSegment(App.Vector(57, 57.014183, 0), App.Vector(57, -57.014183, 0)), False)
sketch8.addGeometry(Part.LineSegment(App.Vector(57, -57.014183, 0), App.Vector(-57, -57.014183, 0)), False)
sketch8.addConstraint(Sketcher.Constraint("Coincident", 0, 2, 1, 1))
sketch8.addConstraint(Sketcher.Constraint("Coincident", 1, 2, 2, 1))
sketch8.addConstraint(Sketcher.Constraint("Coincident", 2, 2, 3, 1))
sketch8.addConstraint(Sketcher.Constraint("Coincident", 3, 2, 0, 1))
sketch8.addConstraint(Sketcher.Constraint("Vertical", 0))
sketch8.addConstraint(Sketcher.Constraint("Horizontal", 1))
sketch8.addConstraint(Sketcher.Constraint("Vertical", 2))
sketch8.addConstraint(Sketcher.Constraint("Horizontal", 3))
sketch8.addConstraint(Sketcher.Constraint("Symmetric", 0, 2, 2, 2, -1, 1))
sketch8.addConstraint(Sketcher.Constraint("DistanceX", 1, 1, 1, 2, 114.0))
sketch8.addConstraint(Sketcher.Constraint("DistanceY", 0, 1, 0, 2, 114.028365))
sketch8.setExpression("Constraints[9]", "Params.sketch8_width")
pocket5 = body.newObject("PartDesign::Pocket", "Pocket004")
pocket5.Profile = sketch8
pocket5.setExpression("Length", "Params.pocket5_length")
pocket5.Reversed = True
doc.recompute()

fillet4 = body.newObject("PartDesign::Fillet", "Fillet003")
fillet4.Base = (pocket5, edges_at(pocket5, [
    (-57, 2, 57.014),
    (57, 2, -57.014),
    (57, 2, 57.014),
    (-57, 2, -57.014),
]))
fillet4.setExpression("Radius", "Params.fillet4_radius")

doc.recompute()
